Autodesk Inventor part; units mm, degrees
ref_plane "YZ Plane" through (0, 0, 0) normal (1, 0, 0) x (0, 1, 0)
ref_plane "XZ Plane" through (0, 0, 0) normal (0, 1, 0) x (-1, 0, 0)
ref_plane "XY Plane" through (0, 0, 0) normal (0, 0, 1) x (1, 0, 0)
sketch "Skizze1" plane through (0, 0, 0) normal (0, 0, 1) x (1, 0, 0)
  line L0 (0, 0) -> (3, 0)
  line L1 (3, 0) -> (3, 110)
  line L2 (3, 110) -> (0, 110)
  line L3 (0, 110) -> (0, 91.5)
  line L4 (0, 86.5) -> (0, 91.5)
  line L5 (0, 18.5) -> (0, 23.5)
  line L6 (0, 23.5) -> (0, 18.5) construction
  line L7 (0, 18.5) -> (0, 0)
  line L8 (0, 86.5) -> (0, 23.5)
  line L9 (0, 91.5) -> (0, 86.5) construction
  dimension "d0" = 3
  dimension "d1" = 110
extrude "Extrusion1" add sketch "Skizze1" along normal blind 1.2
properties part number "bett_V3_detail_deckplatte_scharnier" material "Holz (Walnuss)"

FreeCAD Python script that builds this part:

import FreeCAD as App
import Part
import Sketcher
Q = App.Units.Quantity


def add_polygon(sketch, points):
    """Adds a closed chain of lines whose ends are joined by coincident constraints."""
    first, n = sketch.GeometryCount, len(points)
    for a, b in zip(points, points[1:] + points[:1]):
        sketch.addGeometry(Part.LineSegment(App.Vector(*a, 0), App.Vector(*b, 0)), False)
    for i in range(n):
        sketch.addConstraint(Sketcher.Constraint("Coincident", first + i, 2, first + (i + 1) % n, 1))

doc = App.newDocument("Part")
body = doc.addObject("PartDesign::Body", "Body")

# Sketch on XY plane
sketch1 = body.newObject("Sketcher::SketchObject", "Sketch")
sketch1.AttachmentSupport = (doc.getObject("XY_Plane"), [""])
sketch1.MapMode = "FlatFace"
add_polygon(sketch1, [(0, 110), (0, 0), (3, 0), (3, 110)])  # lines 0-3
sketch1.addConstraint([
    Sketcher.Constraint("Vertical", 0),
    Sketcher.Constraint("Horizontal", 1),
    Sketcher.Constraint("Vertical", 2),
    Sketcher.Constraint("Horizontal", 3),
    Sketcher.Constraint("Coincident", 0, 2, -1, 1),
    Sketcher.Constraint("DistanceX", 1, 1, 1, 2, Q("3 mm")),
    Sketcher.Constraint("DistanceY", 0, 2, 0, 1, Q("110 mm")),
])
pad1 = body.newObject("PartDesign::Pad", "Pad")
pad1.Profile = sketch1
pad1.Length = 1.2

doc.recompute()
